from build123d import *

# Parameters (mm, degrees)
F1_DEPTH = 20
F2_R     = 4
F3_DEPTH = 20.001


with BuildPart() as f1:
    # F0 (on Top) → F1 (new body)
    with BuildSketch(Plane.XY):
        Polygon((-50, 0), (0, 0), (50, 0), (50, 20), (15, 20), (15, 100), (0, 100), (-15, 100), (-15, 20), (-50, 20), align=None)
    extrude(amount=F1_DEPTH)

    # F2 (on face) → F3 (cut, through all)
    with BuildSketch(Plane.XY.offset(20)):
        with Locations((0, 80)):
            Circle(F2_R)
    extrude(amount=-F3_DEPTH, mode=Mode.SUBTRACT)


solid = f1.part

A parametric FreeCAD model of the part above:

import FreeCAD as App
import Part
import Sketcher
from FreeCAD import Vector


def add_polygon(sketch, points):
    """Adds a closed chain of lines whose ends are joined by coincident constraints."""
    first, n = sketch.GeometryCount, len(points)
    for a, b in zip(points, points[1:] + points[:1]):
        sketch.addGeometry(Part.LineSegment(App.Vector(*a, 0), App.Vector(*b, 0)), False)
    for i in range(n):
        sketch.addConstraint(Sketcher.Constraint("Coincident", first + i, 2, first + (i + 1) % n, 1))

doc = App.newDocument("Part")
params = doc.addObject("Spreadsheet::Sheet", "Params")
for row, (alias, value) in enumerate([
    ("sketch1_width", "100 mm"),
    ("sketch1_width2", "35 mm"),
    ("sketch1_height", "20 mm"),
    ("sketch1_height2", "80 mm"),
    ("pad1_length", "20 mm"),
    ("sketch2_diameter", "8 mm"),
], start=1):
    params.set(f"A{row}", alias)
    params.set(f"B{row}", "=" + value)
    params.setAlias(f"B{row}", alias)

body = doc.addObject("PartDesign::Body", "Body")

# Sketch on XY plane
sketch1 = body.newObject("Sketcher::SketchObject", "Sketch")
sketch1.AttachmentSupport = (doc.getObject("XY_Plane"), [""])
sketch1.MapMode = "FlatFace"
add_polygon(sketch1, [(-50, 0), (50, 0), (50, 20), (15, 20), (15, 100), (-15, 100), (-15, 20), (-50, 20)])  # lines 0-7
sketch1.addConstraint([
    Sketcher.Constraint("Horizontal", 0),
    Sketcher.Constraint("Vertical", 1),
    Sketcher.Constraint("Horizontal", 2),
    Sketcher.Constraint("Vertical", 3),
    Sketcher.Constraint("Horizontal", 4),
    Sketcher.Constraint("Vertical", 5),
    Sketcher.Constraint("Horizontal", 6),
    Sketcher.Constraint("Vertical", 7),
    Sketcher.Constraint("Symmetric", 0, 2, 7, 2, -1, 1),
    Sketcher.Constraint("Symmetric", 2, 2, 5, 2, -2),
    Sketcher.Constraint("DistanceX", 0, 1, 0, 2, 100.0),
    Sketcher.Constraint("DistanceX", 2, 2, 2, 1, 35.0),
    Sketcher.Constraint("DistanceY", 1, 1, 1, 2, 20.0),
    Sketcher.Constraint("DistanceY", 3, 1, 3, 2, 80.0),
])
sketch1.setExpression("Constraints[18]", "Params.sketch1_width")
sketch1.setExpression("Constraints[19]", "Params.sketch1_width2")
sketch1.setExpression("Constraints[20]", "Params.sketch1_height")
sketch1.setExpression("Constraints[21]", "Params.sketch1_height2")
pad1 = body.newObject("PartDesign::Pad", "Pad")
pad1.Profile = sketch1
pad1.setExpression("Length", "Params.pad1_length")

# Sketch on XY plane
sketch2 = body.newObject("Sketcher::SketchObject", "Sketch001")
sketch2.AttachmentSupport = (doc.getObject("XY_Plane"), [""])
sketch2.MapMode = "FlatFace"
sketch2.AttachmentOffset = App.Placement(Vector(0, 0, 20), App.Rotation())
sketch2.addGeometry(Part.Circle(Vector(0, 80, 0), Vector(0, 0, 1), 4), False)
sketch2.addConstraint([
    Sketcher.Constraint("PointOnObject", 0, 3, -2),
    Sketcher.Constraint("Diameter", 0, 8.0),
    Sketcher.Constraint("DistanceY", -1, 1, 0, 3, 80.0),
])
sketch2.setExpression("Constraints[1]", "Params.sketch2_diameter")
pocket1 = body.newObject("PartDesign::Pocket", "Pocket")
pocket1.Profile = sketch2
pocket1.Type = "ThroughAll"

doc.recompute()
